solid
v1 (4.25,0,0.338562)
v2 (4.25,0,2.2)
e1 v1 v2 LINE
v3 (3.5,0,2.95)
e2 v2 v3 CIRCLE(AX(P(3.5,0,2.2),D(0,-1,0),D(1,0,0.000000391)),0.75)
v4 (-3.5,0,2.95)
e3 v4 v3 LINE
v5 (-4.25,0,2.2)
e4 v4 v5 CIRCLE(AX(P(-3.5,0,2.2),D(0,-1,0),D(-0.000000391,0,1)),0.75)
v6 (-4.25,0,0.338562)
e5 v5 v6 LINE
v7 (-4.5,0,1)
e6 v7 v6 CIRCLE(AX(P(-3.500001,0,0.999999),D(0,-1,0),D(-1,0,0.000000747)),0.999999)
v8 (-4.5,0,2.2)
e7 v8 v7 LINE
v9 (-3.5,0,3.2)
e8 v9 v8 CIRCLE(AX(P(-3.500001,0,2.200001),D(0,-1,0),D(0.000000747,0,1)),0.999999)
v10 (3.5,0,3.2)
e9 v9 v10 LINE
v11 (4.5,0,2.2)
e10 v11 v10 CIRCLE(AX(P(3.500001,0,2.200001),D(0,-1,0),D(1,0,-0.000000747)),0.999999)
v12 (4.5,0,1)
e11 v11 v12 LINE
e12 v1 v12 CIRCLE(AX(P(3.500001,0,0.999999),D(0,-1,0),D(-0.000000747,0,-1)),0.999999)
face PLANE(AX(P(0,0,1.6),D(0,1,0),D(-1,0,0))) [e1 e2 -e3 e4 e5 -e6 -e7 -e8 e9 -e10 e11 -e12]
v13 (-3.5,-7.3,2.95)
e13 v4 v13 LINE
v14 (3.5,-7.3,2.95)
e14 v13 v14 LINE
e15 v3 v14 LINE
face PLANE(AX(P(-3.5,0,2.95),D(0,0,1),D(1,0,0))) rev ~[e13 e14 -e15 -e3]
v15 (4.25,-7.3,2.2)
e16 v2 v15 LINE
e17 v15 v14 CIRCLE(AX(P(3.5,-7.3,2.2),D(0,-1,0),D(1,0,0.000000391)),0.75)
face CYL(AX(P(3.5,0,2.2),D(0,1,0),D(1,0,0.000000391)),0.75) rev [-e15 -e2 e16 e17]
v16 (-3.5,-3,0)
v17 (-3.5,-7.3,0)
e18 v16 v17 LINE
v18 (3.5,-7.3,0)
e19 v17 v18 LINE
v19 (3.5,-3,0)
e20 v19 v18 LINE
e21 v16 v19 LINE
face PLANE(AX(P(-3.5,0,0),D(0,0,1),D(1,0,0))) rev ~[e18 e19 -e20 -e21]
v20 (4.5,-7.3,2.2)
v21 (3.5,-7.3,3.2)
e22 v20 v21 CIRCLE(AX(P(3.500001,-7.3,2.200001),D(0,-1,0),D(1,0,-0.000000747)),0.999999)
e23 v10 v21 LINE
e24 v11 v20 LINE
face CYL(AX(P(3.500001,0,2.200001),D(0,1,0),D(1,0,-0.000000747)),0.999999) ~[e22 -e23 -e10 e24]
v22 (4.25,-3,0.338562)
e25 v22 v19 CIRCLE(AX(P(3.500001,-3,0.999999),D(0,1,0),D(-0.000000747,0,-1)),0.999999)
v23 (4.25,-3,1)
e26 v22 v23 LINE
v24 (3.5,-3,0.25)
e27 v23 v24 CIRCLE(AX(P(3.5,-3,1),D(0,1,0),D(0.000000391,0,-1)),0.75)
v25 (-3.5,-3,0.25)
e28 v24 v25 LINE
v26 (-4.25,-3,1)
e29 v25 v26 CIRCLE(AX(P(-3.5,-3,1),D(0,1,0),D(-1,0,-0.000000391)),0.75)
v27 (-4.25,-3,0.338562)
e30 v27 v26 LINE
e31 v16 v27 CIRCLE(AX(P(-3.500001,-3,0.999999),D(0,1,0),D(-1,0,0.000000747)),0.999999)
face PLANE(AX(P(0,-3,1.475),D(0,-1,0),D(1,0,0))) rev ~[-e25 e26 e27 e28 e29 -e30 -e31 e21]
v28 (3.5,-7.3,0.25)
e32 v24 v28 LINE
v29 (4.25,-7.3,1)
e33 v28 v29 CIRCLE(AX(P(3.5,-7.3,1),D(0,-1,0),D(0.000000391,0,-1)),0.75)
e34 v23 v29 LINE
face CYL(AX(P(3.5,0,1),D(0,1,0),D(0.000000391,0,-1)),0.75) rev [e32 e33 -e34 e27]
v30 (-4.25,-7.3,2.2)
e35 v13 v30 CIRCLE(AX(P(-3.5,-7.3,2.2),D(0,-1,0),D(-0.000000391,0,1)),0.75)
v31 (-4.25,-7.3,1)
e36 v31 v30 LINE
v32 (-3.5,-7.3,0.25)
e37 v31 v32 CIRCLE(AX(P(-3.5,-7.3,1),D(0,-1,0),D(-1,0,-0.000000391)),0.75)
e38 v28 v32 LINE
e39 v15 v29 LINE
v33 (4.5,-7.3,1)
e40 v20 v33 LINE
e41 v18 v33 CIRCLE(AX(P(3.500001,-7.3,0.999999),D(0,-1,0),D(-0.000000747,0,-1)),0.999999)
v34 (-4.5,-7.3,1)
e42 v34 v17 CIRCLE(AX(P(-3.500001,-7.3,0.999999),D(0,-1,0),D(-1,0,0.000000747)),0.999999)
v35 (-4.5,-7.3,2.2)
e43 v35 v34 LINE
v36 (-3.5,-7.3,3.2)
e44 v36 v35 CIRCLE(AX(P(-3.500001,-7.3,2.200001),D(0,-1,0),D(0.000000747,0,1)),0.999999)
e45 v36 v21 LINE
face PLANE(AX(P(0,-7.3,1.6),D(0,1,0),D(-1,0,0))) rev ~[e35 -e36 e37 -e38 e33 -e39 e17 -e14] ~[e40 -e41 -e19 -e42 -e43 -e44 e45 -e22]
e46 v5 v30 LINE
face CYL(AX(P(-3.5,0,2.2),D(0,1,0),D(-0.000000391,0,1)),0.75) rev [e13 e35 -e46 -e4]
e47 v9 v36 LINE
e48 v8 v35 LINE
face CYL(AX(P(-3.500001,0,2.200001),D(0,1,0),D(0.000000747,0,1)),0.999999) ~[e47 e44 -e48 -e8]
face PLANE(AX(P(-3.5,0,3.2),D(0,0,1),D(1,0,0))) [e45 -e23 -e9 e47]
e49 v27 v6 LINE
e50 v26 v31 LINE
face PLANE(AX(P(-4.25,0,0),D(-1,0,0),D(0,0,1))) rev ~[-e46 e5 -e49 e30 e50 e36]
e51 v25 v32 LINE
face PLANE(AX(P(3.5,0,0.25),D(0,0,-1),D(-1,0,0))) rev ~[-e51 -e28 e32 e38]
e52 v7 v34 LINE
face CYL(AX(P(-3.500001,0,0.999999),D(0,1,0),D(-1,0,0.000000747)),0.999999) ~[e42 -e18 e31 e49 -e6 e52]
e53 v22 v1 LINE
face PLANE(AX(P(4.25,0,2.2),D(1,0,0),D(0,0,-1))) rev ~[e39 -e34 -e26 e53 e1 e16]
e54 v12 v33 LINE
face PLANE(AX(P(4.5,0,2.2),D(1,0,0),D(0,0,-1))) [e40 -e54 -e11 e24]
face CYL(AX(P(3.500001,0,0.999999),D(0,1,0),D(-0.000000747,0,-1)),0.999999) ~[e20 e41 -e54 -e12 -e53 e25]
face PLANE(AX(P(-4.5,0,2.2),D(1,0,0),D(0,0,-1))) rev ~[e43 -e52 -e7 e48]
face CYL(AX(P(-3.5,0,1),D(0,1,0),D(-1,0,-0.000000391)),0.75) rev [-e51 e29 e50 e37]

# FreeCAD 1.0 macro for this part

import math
import FreeCAD as App
import Part
import Sketcher

V = App.Vector


def edges_at(feature, points):
    """Names of the edges that pass closest to the given points."""
    edges = feature.Shape.Edges
    near = lambda p: min(range(len(edges)), key=lambda i: edges[i].distToShape(Part.Vertex(*p))[0])
    return sorted({f"Edge{near(p) + 1}" for p in points})


def add_polygon(sketch, points):
    """Adds a closed chain of lines whose ends are joined by coincident constraints."""
    first, n = sketch.GeometryCount, len(points)
    for a, b in zip(points, points[1:] + points[:1]):
        sketch.addGeometry(Part.LineSegment(App.Vector(*a, 0), App.Vector(*b, 0)), False)
    for i in range(n):
        sketch.addConstraint(Sketcher.Constraint("Coincident", first + i, 2, first + (i + 1) % n, 1))

doc = App.newDocument("Part")
body = doc.addObject("PartDesign::Body", "Body")

# Sketch on XY plane
sketch1 = body.newObject("Sketcher::SketchObject", "Sketch")
sketch1.AttachmentSupport = (doc.getObject("XY_Plane"), [""])
sketch1.MapMode = "FlatFace"
add_polygon(sketch1, [(-4.2, 3), (-4.2, 0), (4.2, 0), (4.2, 3)])  # lines 0-3
sketch1.addConstraint([
    Sketcher.Constraint("Vertical", 0),
    Sketcher.Constraint("Horizontal", 1),
    Sketcher.Constraint("Vertical", 2),
    Sketcher.Constraint("Horizontal", 3),
    Sketcher.Constraint("Symmetric", 0, 2, 1, 2, -1, 1),
    Sketcher.Constraint("DistanceX", 1, 1, 1, 2, 8.5),
    Sketcher.Constraint("DistanceY", 0, 2, 0, 1, 2.95),
])
pad1 = body.newObject("PartDesign::Pad", "Pad")
pad1.Profile = sketch1
pad1.Length = 3
doc.recompute()

fillet = body.newObject("PartDesign::Fillet", "Fillet")
fillet.Base = (pad1, edges_at(pad1, [(-4.25, 2.95, 1.5), (4.25, 2.95, 1.5)]))
fillet.Radius = 0.75
body2 = doc.addObject("PartDesign::Body", "Body001")

# Sketch on XY plane
sketch2 = body2.newObject("Sketcher::SketchObject", "Sketch001")
sketch2.AttachmentSupport = (doc.getObject("XY_Plane001"), [""])
sketch2.MapMode = "FlatFace"
sketch2.addGeometry([
    Part.LineSegment(V(3.5, 3.2, 0), V(-3.5, 3.2, 0)),  # 0
    Part.ArcOfCircle(Part.Circle(V(-3.5, 2.2, 0), V(0, 0, 1), 1), math.radians(90), math.radians(180)),  # 1
    Part.LineSegment(V(-4.5, 2.2, 0), V(-4.5, 1, 0)),  # 2
    Part.ArcOfCircle(Part.Circle(V(-3.5, 1, 0), V(0, 0, 1), 1), math.radians(180), math.radians(270)),  # 3
    Part.LineSegment(V(-3.5, 0, 0), V(3.5, 0, 0)),  # 4
    Part.ArcOfCircle(Part.Circle(V(3.5, 1, 0), V(0, 0, 1), 1), math.radians(-90), math.radians(0)),  # 5
    Part.LineSegment(V(4.5, 1, 0), V(4.5, 2.2, 0)),  # 6
    Part.ArcOfCircle(Part.Circle(V(3.5, 2.2, 0), V(0, 0, 1), 1), math.radians(0), math.radians(90)),  # 7
    Part.LineSegment(V(-3.5, 3, 0), V(3.5, 3, 0)),  # 8
    Part.ArcOfCircle(Part.Circle(V(3.5, 2.2, 0), V(0, 0, 1), 0.8), math.radians(0), math.radians(90)),  # 9
    Part.LineSegment(V(4.2, 2.2, 0), V(4.2, 1, 0)),  # 10
    Part.ArcOfCircle(Part.Circle(V(3.5, 1, 0), V(0, 0, 1), 0.8), math.radians(-90), math.radians(0)),  # 11
    Part.LineSegment(V(3.5, 0.2, 0), V(-3.5, 0.2, 0)),  # 12
    Part.ArcOfCircle(Part.Circle(V(-3.5, 1, 0), V(0, 0, 1), 0.8), math.radians(-180), math.radians(-90)),  # 13
    Part.LineSegment(V(-4.2, 1, 0), V(-4.2, 2.2, 0)),  # 14
    Part.ArcOfCircle(Part.Circle(V(-3.5, 2.2, 0), V(0, 0, 1), 0.8), math.radians(90), math.radians(180)),  # 15
], False)
sketch2.addConstraint([
    Sketcher.Constraint("Tangent", 0, 2, 1, 1),
    Sketcher.Constraint("Tangent", 1, 2, 2, 1),
    Sketcher.Constraint("Tangent", 2, 2, 3, 1),
    Sketcher.Constraint("Tangent", 3, 2, 4, 1),
    Sketcher.Constraint("Tangent", 4, 2, 5, 1),
    Sketcher.Constraint("Tangent", 5, 2, 6, 1),
    Sketcher.Constraint("Tangent", 6, 2, 7, 1),
    Sketcher.Constraint("Tangent", 7, 2, 0, 1),
    Sketcher.Constraint("Tangent", 8, 2, 9, 2),
    Sketcher.Constraint("Tangent", 9, 1, 10, 1),
    Sketcher.Constraint("Tangent", 10, 2, 11, 2),
    Sketcher.Constraint("Tangent", 11, 1, 12, 1),
    Sketcher.Constraint("Tangent", 12, 2, 13, 2),
    Sketcher.Constraint("Tangent", 13, 1, 14, 1),
    Sketcher.Constraint("Tangent", 14, 2, 15, 2),
    Sketcher.Constraint("Tangent", 15, 1, 8, 1),
    Sketcher.Constraint("Horizontal", 0),
    Sketcher.Constraint("Vertical", 2),
    Sketcher.Constraint("Horizontal", 4),
    Sketcher.Constraint("Vertical", 6),
    Sketcher.Constraint("Horizontal", 8),
    Sketcher.Constraint("Vertical", 10),
    Sketcher.Constraint("Horizontal", 12),
    Sketcher.Constraint("Vertical", 14),
    Sketcher.Constraint("Coincident", 9, 3, 7, 3),
    Sketcher.Constraint("Coincident", 11, 3, 5, 3),
    Sketcher.Constraint("Coincident", 13, 3, 3, 3),
    Sketcher.Constraint("Equal", 1, 3),
    Sketcher.Constraint("Equal", 3, 5),
    Sketcher.Constraint("Equal", 5, 7),
    Sketcher.Constraint("Equal", 13, 15),
    Sketcher.Constraint("Symmetric", 3, 2, 4, 2, -1, 1),
    Sketcher.Constraint("Radius", 1, 0.999999),
    Sketcher.Constraint("DistanceX", 0, 2, 0, 1, 7.0),
    Sketcher.Constraint("Radius", 9, 0.75),
    Sketcher.Constraint("DistanceY", 2, 2, 2, 1, 1.2),
])
pad2 = body2.newObject("PartDesign::Pad", "Pad001")
pad2.Profile = sketch2
pad2.Length = 7.3
doc.recompute()

boolean = body2.newObject("PartDesign::Boolean", "Boolean")
boolean.Type = "Cut"
boolean.addObjects([body])
body3 = doc.addObject("PartDesign::Body", "Body002")
doc.recompute()

body2.Placement = App.Placement(V(0, 0, 0), App.Rotation(V(1, 0, 0), 90))
boolean2 = body3.newObject("PartDesign::Boolean", "Boolean001")
boolean2.Type = "Fuse"
boolean2.addObjects([body2])

doc.recompute()
